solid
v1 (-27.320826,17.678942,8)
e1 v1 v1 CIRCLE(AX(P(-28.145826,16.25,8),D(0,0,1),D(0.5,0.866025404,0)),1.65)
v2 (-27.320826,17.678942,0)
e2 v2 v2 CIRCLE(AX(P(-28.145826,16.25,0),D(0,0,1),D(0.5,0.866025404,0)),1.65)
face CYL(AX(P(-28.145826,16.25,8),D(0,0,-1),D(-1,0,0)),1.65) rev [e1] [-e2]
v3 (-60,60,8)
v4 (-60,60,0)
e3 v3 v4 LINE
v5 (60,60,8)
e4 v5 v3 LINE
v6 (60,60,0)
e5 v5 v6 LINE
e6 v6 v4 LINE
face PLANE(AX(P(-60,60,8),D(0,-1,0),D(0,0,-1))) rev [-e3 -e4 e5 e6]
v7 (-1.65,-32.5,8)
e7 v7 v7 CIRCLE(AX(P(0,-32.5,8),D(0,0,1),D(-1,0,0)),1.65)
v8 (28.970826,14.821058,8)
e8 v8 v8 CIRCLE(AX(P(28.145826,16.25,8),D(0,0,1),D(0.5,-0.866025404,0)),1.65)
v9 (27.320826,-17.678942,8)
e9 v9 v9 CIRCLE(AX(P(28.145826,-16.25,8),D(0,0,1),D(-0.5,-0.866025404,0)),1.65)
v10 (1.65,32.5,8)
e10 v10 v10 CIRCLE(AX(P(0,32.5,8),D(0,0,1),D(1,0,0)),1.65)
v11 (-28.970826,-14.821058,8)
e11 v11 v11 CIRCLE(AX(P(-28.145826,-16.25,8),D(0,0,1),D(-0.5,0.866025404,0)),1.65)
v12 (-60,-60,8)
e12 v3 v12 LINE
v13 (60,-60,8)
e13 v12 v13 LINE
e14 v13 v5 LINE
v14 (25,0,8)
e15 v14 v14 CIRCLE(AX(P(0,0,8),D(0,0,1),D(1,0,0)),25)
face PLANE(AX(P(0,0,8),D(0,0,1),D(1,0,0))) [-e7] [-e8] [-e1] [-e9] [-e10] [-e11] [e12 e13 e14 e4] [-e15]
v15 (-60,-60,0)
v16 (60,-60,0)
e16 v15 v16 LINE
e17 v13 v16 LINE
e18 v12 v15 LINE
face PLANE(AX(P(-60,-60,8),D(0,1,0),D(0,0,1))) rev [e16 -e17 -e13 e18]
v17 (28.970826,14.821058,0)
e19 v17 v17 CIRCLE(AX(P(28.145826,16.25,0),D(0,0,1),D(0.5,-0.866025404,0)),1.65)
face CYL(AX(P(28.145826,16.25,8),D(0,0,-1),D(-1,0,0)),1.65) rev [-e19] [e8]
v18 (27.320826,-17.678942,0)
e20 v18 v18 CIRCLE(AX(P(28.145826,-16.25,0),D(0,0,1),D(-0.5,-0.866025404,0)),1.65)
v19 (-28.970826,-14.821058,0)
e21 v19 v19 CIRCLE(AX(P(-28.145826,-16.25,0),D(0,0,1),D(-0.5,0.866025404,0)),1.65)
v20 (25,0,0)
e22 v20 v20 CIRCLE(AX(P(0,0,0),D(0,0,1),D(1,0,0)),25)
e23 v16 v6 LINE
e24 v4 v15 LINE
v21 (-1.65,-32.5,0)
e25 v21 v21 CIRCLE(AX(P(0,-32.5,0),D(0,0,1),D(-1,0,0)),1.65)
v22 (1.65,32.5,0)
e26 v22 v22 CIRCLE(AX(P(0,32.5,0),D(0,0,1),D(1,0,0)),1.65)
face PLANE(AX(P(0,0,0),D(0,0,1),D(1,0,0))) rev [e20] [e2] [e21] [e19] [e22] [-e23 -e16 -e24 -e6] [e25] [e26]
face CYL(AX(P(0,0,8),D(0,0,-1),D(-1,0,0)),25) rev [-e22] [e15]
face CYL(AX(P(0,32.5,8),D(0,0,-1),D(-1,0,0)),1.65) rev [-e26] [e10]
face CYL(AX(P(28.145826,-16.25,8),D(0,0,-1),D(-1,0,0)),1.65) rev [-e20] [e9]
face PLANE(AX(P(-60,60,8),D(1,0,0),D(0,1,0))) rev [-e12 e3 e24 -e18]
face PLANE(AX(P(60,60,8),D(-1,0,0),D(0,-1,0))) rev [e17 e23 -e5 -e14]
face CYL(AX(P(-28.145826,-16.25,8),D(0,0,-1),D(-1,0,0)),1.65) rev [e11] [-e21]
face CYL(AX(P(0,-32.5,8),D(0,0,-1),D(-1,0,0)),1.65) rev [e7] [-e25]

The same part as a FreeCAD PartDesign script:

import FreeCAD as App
import Part
import Sketcher


def add_polygon(sketch, points):
    """Adds a closed chain of lines whose ends are joined by coincident constraints."""
    first, n = sketch.GeometryCount, len(points)
    for a, b in zip(points, points[1:] + points[:1]):
        sketch.addGeometry(Part.LineSegment(App.Vector(*a, 0), App.Vector(*b, 0)), False)
    for i in range(n):
        sketch.addConstraint(Sketcher.Constraint("Coincident", first + i, 2, first + (i + 1) % n, 1))

doc = App.newDocument("Part")
body = doc.addObject("PartDesign::Body", "Body")

sketch1 = body.newObject("Sketcher::SketchObject", "Sketch")
sketch1.AttachmentSupport = (doc.getObject("XY_Plane"), [""])
sketch1.MapMode = "FlatFace"
add_polygon(sketch1, [(-60, 60), (-60, -60), (60, -60), (60, 60)])
sketch1.addGeometry(Part.Circle(App.Vector(0, 0, 0), App.Vector(0, 0, 1), 25), False)
sketch1.addConstraint([
    Sketcher.Constraint("Vertical", 0),
    Sketcher.Constraint("Horizontal", 1),
    Sketcher.Constraint("Vertical", 2),
    Sketcher.Constraint("Horizontal", 3),
    Sketcher.Constraint("Coincident", 4, 3, -1, 1),
    Sketcher.Constraint("Symmetric", 0, 2, 2, 2, -1, 1),
    Sketcher.Constraint("Equal", 3, 0),
    Sketcher.Constraint("Diameter", 4, 50.0),
    Sketcher.Constraint("DistanceX", 1, 1, 1, 2, 120.0),
])
pad1 = body.newObject("PartDesign::Pad", "Pad")
pad1.Profile = sketch1
pad1.Length = 8

sketch2 = body.newObject("Sketcher::SketchObject", "Sketch001")
sketch2.AttachmentSupport = (doc.getObject("XY_Plane"), [""])
sketch2.MapMode = "FlatFace"
sketch2.addGeometry(Part.Circle(App.Vector(0, 32.5, 0), App.Vector(0, 0, 1), 1.6), False)
sketch2.addConstraint([
    Sketcher.Constraint("PointOnObject", 0, 3, -2),
    Sketcher.Constraint("Diameter", 0, 3.3),
    Sketcher.Constraint("DistanceY", -1, 1, 0, 3, 32.5),
])
pocket1 = body.newObject("PartDesign::Pocket", "Pocket")
pocket1.Profile = sketch2
pocket1.Type = "ThroughAll"
pocket1.Reversed = True
doc.recompute()

polarpattern = body.newObject("PartDesign::PolarPattern", "PolarPattern")
polarpattern.Originals = [pocket1]
polarpattern.Axis = (doc.getObject("Z_Axis"), [""])
polarpattern.Angle = 360
polarpattern.Occurrences = 6
body.Tip = polarpattern

doc.recompute()
